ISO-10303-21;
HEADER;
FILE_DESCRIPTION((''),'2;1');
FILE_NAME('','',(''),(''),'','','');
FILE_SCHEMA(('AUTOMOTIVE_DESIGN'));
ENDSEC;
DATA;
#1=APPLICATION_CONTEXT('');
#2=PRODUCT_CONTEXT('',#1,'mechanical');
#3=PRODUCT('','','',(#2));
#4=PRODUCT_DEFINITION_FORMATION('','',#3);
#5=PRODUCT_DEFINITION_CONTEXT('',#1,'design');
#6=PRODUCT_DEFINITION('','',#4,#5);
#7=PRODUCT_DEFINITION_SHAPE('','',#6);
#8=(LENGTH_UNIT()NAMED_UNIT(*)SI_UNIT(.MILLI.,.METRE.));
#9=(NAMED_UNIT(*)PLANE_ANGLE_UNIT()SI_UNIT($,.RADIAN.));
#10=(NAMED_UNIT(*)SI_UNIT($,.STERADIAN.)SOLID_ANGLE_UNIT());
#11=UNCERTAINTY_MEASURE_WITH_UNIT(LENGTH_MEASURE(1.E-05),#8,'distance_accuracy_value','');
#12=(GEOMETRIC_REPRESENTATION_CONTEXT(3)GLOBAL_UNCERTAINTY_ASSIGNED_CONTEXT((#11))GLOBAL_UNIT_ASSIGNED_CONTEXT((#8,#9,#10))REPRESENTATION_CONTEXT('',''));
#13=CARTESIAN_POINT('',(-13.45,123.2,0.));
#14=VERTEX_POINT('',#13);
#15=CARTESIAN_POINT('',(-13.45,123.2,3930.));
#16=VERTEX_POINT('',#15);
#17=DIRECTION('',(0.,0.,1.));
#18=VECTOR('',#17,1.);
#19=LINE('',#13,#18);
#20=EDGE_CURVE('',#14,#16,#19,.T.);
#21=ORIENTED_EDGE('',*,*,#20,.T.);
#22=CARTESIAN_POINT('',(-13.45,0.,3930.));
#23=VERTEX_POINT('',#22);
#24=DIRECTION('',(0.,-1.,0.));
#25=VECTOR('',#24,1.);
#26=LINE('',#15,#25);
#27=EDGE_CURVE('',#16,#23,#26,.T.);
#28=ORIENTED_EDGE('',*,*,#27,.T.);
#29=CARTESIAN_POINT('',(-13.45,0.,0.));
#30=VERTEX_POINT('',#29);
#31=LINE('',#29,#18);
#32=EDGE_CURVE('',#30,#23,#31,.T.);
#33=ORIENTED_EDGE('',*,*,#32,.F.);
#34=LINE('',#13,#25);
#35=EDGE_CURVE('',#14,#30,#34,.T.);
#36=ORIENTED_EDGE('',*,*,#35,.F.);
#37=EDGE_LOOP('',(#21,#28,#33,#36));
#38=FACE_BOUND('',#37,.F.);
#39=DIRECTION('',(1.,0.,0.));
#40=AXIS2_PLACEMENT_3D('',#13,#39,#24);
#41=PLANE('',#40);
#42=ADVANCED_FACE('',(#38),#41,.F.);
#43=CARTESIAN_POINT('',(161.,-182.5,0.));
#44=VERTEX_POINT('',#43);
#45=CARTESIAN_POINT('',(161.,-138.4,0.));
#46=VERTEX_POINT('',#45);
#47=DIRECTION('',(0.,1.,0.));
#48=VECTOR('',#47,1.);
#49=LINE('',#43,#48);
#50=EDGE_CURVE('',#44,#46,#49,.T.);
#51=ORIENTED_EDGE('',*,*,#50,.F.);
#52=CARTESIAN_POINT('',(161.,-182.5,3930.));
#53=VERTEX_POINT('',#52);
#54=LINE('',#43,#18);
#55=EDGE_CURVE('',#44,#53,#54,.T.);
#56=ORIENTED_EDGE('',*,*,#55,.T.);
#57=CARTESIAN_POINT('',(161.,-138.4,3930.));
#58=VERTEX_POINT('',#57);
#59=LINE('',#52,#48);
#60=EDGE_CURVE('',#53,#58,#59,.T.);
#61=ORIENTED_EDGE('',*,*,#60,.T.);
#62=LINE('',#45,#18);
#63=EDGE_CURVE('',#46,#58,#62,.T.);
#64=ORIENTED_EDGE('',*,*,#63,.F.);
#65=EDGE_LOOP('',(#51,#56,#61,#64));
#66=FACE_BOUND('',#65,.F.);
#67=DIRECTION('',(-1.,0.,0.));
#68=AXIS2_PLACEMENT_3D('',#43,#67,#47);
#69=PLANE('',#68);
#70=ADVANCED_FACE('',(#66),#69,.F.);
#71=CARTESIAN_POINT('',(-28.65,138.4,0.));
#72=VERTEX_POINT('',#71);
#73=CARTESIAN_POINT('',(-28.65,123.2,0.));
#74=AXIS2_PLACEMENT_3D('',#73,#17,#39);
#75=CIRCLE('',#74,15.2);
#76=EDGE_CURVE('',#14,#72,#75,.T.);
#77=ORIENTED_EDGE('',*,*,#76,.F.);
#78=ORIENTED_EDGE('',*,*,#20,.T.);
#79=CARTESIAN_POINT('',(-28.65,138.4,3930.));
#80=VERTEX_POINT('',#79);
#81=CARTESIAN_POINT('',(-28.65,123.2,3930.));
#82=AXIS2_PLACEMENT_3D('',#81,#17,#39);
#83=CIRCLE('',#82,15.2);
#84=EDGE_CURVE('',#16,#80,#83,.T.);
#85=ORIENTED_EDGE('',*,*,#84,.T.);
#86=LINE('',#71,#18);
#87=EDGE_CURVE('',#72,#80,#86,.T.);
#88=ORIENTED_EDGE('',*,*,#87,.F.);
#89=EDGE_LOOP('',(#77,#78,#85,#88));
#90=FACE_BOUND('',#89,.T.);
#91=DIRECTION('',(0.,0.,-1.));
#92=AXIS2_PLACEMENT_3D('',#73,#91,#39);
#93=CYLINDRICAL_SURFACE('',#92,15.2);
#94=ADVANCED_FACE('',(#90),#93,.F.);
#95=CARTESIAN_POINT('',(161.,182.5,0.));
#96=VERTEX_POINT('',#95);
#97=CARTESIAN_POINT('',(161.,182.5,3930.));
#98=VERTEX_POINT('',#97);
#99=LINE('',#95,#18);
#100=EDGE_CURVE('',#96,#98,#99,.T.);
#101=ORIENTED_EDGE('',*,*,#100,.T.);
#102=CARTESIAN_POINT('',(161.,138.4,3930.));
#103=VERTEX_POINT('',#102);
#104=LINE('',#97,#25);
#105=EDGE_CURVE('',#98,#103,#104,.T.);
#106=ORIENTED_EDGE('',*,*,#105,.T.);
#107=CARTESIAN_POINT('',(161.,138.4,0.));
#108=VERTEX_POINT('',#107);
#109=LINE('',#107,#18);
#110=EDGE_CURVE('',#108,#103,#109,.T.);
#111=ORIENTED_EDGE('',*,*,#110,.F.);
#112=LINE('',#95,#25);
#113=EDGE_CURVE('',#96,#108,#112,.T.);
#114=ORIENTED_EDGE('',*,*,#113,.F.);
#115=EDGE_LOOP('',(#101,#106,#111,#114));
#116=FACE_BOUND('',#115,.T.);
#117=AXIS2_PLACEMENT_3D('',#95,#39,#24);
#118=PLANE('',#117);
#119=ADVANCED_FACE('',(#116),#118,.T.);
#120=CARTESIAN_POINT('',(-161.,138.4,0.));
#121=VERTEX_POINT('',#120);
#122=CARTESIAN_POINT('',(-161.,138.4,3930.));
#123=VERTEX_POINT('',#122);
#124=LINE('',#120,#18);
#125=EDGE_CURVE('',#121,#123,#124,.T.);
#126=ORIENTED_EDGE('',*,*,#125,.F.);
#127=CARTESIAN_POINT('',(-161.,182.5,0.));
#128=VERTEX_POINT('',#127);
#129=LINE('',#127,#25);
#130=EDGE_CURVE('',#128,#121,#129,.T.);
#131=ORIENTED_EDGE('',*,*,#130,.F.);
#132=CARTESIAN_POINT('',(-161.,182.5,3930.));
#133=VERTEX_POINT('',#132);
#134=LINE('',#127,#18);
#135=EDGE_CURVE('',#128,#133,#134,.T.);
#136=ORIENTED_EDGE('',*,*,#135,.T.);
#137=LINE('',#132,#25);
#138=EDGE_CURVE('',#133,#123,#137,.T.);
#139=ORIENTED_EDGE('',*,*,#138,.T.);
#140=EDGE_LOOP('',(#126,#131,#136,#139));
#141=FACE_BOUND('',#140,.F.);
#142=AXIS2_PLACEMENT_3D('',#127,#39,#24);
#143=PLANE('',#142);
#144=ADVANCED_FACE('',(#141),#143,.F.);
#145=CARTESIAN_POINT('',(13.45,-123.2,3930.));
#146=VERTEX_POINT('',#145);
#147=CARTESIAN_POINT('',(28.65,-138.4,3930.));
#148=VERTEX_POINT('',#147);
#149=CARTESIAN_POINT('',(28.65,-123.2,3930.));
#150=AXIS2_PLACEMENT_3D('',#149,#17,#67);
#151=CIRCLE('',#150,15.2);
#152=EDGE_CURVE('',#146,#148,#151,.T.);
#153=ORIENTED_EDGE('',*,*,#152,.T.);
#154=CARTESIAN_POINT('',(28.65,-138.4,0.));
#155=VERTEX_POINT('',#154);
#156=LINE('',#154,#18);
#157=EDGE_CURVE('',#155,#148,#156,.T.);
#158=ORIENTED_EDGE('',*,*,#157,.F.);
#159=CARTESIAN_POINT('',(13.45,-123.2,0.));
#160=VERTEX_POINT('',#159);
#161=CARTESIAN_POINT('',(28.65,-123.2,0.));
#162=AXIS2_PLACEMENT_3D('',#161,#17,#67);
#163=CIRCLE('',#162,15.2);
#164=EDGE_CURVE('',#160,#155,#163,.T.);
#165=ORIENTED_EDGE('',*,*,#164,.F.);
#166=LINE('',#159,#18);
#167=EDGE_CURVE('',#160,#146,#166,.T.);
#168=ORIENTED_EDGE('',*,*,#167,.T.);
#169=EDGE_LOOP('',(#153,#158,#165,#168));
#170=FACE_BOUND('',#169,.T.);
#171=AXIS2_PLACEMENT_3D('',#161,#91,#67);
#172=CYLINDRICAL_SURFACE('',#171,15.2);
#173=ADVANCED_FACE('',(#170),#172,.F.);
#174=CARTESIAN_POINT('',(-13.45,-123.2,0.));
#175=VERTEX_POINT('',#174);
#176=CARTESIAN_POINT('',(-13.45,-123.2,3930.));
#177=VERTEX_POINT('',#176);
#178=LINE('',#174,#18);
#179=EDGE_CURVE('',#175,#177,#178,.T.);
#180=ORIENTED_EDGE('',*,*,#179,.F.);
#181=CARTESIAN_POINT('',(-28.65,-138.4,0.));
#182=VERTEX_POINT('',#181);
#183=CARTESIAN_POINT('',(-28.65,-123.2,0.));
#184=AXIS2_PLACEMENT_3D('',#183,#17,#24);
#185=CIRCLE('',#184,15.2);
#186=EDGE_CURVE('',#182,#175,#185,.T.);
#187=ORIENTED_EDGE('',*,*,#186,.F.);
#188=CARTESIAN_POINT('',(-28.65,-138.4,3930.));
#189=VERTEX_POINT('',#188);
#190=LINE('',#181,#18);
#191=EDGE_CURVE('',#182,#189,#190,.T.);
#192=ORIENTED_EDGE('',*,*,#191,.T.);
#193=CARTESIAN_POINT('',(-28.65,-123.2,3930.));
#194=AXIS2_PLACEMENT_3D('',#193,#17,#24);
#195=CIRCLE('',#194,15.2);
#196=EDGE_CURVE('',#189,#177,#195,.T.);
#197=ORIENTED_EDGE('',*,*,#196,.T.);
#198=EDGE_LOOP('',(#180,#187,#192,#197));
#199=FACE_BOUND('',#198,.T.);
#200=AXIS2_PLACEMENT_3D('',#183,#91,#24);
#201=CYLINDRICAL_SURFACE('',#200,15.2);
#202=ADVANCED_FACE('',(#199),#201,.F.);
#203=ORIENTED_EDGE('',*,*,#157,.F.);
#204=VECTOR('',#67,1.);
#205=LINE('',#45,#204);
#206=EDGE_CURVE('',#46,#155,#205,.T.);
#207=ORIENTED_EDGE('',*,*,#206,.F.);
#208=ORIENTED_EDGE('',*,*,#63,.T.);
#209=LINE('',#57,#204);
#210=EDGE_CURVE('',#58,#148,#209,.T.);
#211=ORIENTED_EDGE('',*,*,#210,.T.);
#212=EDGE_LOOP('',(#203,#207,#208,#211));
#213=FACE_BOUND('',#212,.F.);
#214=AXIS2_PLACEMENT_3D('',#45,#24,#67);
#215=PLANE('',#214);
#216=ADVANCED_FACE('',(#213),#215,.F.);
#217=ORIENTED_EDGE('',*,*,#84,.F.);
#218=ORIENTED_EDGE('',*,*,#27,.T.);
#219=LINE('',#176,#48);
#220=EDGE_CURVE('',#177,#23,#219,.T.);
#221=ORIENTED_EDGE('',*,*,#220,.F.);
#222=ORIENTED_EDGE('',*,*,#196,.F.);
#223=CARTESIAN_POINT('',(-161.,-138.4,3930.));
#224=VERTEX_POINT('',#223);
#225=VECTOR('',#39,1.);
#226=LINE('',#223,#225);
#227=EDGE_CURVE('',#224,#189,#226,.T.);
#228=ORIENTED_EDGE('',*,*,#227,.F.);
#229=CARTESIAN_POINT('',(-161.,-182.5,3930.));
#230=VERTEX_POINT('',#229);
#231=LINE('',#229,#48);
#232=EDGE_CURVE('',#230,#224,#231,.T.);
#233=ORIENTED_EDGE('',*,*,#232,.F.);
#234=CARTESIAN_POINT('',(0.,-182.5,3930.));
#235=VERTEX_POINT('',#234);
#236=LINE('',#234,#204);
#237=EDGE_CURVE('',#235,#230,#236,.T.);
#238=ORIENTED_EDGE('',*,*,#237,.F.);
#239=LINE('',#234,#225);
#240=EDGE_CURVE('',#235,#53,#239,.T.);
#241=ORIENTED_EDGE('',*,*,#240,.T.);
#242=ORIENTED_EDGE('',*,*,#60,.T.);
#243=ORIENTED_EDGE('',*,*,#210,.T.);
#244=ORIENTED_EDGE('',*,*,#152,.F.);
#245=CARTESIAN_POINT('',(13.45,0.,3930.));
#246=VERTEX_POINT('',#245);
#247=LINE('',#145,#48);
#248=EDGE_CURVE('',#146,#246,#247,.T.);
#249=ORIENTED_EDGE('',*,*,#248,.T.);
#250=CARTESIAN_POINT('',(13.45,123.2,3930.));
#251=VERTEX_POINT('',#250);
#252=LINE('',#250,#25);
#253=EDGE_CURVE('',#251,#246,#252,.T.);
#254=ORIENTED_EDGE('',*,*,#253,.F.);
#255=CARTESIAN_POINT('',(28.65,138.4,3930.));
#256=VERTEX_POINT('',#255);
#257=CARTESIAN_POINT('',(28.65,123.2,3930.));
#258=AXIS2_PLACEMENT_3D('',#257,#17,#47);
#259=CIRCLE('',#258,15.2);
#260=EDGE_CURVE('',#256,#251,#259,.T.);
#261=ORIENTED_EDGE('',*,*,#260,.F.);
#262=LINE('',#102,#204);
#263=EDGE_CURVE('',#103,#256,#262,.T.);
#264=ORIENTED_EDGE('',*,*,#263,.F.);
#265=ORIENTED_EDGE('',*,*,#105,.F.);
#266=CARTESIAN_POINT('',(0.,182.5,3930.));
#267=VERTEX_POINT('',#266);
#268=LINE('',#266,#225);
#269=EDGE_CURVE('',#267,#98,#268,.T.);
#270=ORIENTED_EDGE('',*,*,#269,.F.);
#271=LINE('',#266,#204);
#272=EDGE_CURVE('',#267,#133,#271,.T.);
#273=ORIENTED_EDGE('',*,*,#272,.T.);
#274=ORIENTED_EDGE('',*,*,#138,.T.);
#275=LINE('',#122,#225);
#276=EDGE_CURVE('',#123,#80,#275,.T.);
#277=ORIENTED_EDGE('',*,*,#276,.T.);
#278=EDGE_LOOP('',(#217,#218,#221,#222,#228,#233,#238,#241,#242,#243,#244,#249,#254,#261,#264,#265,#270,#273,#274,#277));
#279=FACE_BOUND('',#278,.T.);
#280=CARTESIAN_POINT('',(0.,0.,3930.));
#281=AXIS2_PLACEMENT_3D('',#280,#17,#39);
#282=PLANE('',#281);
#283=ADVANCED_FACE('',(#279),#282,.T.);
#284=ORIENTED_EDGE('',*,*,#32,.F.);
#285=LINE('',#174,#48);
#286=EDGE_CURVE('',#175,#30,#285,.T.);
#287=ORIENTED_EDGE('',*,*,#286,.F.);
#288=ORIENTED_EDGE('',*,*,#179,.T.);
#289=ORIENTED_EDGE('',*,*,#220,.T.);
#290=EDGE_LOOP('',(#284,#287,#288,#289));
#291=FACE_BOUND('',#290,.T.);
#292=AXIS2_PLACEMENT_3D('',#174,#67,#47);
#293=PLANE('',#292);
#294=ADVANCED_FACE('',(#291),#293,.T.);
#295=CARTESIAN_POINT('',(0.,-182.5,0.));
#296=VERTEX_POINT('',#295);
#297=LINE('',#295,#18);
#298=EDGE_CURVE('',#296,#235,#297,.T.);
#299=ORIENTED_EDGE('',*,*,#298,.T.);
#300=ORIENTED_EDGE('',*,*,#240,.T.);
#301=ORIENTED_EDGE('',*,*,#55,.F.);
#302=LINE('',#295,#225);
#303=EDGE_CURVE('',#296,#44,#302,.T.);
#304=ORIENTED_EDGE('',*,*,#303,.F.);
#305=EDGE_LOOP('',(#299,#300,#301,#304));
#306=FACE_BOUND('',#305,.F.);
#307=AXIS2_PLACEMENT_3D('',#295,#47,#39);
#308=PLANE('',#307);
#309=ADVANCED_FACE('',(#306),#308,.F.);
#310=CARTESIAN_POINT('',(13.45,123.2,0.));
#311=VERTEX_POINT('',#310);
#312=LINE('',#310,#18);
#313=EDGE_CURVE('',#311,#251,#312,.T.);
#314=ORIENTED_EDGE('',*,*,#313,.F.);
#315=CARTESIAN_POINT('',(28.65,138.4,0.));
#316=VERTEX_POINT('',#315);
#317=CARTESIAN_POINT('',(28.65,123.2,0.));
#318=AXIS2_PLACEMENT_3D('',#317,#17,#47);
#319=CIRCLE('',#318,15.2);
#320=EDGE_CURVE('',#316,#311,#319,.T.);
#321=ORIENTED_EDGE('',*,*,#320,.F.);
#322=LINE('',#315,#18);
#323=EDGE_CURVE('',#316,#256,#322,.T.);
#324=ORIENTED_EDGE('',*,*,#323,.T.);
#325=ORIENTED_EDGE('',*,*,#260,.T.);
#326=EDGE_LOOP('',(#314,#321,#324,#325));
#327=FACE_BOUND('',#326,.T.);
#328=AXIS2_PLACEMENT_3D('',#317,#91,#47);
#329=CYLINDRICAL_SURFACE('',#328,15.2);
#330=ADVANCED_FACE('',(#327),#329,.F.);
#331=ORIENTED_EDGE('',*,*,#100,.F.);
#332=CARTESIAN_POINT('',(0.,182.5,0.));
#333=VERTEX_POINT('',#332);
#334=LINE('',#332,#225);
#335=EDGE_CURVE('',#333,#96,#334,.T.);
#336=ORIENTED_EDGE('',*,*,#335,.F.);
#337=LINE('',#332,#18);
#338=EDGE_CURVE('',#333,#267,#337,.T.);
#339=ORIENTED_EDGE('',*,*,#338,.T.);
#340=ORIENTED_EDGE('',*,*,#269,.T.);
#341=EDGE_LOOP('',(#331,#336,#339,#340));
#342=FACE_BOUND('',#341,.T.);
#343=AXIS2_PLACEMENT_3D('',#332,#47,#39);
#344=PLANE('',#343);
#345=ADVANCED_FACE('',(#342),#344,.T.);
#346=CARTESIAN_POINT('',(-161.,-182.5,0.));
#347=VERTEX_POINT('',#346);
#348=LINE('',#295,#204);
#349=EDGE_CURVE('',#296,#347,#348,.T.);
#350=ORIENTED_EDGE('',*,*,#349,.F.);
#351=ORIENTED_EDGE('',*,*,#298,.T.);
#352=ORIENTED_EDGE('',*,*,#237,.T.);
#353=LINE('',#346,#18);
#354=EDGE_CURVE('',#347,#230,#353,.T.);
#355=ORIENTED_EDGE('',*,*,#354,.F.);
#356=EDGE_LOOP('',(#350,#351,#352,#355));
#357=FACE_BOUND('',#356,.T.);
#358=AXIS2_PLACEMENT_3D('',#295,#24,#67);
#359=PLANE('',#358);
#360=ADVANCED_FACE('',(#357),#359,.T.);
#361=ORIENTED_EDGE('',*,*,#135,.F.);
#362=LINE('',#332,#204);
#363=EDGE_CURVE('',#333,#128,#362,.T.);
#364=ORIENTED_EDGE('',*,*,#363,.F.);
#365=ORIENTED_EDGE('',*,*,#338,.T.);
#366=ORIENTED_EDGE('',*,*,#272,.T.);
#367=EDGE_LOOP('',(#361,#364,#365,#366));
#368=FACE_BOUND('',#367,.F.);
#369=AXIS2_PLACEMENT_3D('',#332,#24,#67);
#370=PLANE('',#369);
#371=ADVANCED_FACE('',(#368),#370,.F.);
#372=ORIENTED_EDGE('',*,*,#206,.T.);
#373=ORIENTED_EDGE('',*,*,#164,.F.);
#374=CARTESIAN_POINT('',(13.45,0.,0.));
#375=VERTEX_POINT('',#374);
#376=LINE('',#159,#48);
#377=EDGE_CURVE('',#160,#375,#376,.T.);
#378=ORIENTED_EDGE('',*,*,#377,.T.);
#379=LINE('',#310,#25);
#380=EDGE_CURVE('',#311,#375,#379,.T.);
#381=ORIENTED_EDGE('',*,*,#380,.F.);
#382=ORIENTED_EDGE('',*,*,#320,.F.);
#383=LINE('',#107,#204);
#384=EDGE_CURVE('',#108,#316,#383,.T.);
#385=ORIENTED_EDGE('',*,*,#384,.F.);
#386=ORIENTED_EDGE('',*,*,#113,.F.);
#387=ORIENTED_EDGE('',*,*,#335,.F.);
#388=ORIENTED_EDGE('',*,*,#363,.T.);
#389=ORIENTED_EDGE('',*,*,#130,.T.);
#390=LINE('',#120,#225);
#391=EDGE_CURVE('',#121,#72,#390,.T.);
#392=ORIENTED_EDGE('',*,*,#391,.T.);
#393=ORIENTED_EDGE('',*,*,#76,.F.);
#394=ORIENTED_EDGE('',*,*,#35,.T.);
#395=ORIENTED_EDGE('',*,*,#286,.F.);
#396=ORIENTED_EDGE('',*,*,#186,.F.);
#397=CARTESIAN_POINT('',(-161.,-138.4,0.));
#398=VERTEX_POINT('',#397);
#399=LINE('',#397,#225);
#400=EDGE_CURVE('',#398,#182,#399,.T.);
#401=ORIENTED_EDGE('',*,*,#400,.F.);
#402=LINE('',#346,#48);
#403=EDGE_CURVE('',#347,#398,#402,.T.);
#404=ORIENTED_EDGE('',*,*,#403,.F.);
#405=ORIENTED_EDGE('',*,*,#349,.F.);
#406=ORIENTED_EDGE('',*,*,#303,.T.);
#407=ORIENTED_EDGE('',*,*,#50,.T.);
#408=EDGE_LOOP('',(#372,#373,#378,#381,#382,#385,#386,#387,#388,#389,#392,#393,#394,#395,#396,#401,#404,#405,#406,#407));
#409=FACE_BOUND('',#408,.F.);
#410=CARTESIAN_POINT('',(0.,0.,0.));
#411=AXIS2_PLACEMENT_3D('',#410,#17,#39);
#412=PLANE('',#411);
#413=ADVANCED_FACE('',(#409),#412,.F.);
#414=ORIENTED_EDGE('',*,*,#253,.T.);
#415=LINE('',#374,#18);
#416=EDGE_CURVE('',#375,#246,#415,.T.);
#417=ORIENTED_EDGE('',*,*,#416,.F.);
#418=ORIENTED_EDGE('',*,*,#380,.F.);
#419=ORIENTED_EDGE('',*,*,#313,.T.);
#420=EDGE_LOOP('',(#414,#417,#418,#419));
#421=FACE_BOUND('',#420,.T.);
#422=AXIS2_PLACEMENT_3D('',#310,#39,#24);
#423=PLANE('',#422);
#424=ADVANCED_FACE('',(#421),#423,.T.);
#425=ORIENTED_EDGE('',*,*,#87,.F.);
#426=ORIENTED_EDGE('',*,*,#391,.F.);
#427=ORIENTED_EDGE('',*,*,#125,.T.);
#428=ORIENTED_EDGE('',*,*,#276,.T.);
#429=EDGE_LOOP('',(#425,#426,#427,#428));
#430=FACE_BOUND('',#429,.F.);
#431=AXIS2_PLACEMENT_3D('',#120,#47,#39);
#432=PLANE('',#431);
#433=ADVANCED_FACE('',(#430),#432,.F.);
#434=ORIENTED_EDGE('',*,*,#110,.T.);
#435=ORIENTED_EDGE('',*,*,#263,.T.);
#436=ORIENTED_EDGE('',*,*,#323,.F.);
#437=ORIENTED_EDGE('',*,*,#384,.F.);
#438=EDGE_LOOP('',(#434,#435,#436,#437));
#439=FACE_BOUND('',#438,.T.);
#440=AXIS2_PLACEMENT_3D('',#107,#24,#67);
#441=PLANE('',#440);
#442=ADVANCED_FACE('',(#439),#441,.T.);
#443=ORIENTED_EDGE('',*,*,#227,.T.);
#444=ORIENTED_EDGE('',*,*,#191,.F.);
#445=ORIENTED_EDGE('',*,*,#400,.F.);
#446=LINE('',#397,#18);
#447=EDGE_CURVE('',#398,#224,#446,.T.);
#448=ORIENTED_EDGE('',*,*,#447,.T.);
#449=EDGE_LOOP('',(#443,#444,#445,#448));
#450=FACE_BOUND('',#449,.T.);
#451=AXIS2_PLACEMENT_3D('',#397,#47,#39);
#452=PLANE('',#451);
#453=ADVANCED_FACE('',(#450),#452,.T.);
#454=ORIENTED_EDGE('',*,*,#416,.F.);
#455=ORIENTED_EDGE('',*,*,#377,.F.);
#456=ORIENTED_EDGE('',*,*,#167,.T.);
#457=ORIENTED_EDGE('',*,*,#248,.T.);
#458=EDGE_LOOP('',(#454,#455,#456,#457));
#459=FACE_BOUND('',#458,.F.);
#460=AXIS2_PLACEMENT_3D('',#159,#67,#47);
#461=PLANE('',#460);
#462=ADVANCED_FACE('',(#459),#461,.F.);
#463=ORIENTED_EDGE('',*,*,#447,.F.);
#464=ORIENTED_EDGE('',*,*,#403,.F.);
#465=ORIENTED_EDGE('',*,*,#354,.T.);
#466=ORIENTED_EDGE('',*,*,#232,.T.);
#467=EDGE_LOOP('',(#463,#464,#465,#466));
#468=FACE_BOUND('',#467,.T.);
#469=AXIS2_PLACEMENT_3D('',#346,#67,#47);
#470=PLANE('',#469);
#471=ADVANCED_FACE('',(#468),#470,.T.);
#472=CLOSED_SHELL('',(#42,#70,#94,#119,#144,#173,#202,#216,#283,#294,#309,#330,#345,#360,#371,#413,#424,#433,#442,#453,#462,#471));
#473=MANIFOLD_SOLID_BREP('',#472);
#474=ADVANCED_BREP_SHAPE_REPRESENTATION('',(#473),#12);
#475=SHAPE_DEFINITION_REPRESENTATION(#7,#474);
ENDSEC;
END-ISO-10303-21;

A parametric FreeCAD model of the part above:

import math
import FreeCAD as App
import Part
import Sketcher
Q = App.Units.Quantity

doc = App.newDocument("Part")
body = doc.addObject("PartDesign::Body", "Body")

# Sketch on XY plane
sketch1 = body.newObject("Sketcher::SketchObject", "Sketch")
sketch1.AttachmentSupport = (doc.getObject("XY_Plane"), [""])
sketch1.MapMode = "FlatFace"
sketch1.addGeometry([
    Part.LineSegment(App.Vector(-161, -138, 0), App.Vector(-161, -182, 0)),  # 0
    Part.LineSegment(App.Vector(-161, -182, 0), App.Vector(161, -182, 0)),  # 1
    Part.LineSegment(App.Vector(161, -182, 0), App.Vector(161, -138, 0)),  # 2
    Part.LineSegment(App.Vector(161, -138, 0), App.Vector(29, -138, 0)),  # 3
    Part.ArcOfCircle(Part.Circle(App.Vector(29, -123, 0), App.Vector(0, 0, 1), 15), math.radians(180), math.radians(270)),  # 4
    Part.LineSegment(App.Vector(13, -123, 0), App.Vector(13, 123, 0)),  # 5
    Part.ArcOfCircle(Part.Circle(App.Vector(29, 123, 0), App.Vector(0, 0, 1), 15), math.radians(90), math.radians(180)),  # 6
    Part.LineSegment(App.Vector(29, 138, 0), App.Vector(161, 138, 0)),  # 7
    Part.LineSegment(App.Vector(161, 138, 0), App.Vector(161, 182, 0)),  # 8
    Part.LineSegment(App.Vector(161, 182, 0), App.Vector(-161, 182, 0)),  # 9
    Part.LineSegment(App.Vector(-161, 182, 0), App.Vector(-161, 138, 0)),  # 10
    Part.LineSegment(App.Vector(-161, 138, 0), App.Vector(-29, 138, 0)),  # 11
    Part.ArcOfCircle(Part.Circle(App.Vector(-29, 123, 0), App.Vector(0, 0, 1), 15), math.radians(0), math.radians(90)),  # 12
    Part.LineSegment(App.Vector(-13, 123, 0), App.Vector(-13, -123, 0)),  # 13
    Part.ArcOfCircle(Part.Circle(App.Vector(-29, -123, 0), App.Vector(0, 0, 1), 15), math.radians(-90), math.radians(0)),  # 14
    Part.LineSegment(App.Vector(-29, -138, 0), App.Vector(-161, -138, 0)),  # 15
], False)
sketch1.addConstraint([
    Sketcher.Constraint("Coincident", 0, 2, 1, 1),
    Sketcher.Constraint("Coincident", 1, 2, 2, 1),
    Sketcher.Constraint("Coincident", 2, 2, 3, 1),
    Sketcher.Constraint("Tangent", 3, 2, 4, 2),
    Sketcher.Constraint("Tangent", 4, 1, 5, 1),
    Sketcher.Constraint("Tangent", 5, 2, 6, 2),
    Sketcher.Constraint("Tangent", 6, 1, 7, 1),
    Sketcher.Constraint("Coincident", 7, 2, 8, 1),
    Sketcher.Constraint("Coincident", 8, 2, 9, 1),
    Sketcher.Constraint("Coincident", 9, 2, 10, 1),
    Sketcher.Constraint("Coincident", 10, 2, 11, 1),
    Sketcher.Constraint("Tangent", 11, 2, 12, 2),
    Sketcher.Constraint("Tangent", 12, 1, 13, 1),
    Sketcher.Constraint("Tangent", 13, 2, 14, 2),
    Sketcher.Constraint("Tangent", 14, 1, 15, 1),
    Sketcher.Constraint("Coincident", 15, 2, 0, 1),
    Sketcher.Constraint("Vertical", 0),
    Sketcher.Constraint("Horizontal", 1),
    Sketcher.Constraint("Vertical", 2),
    Sketcher.Constraint("Horizontal", 3),
    Sketcher.Constraint("Vertical", 5),
    Sketcher.Constraint("Horizontal", 7),
    Sketcher.Constraint("Vertical", 8),
    Sketcher.Constraint("Horizontal", 9),
    Sketcher.Constraint("Vertical", 10),
    Sketcher.Constraint("Horizontal", 11),
    Sketcher.Constraint("Vertical", 13),
    Sketcher.Constraint("Horizontal", 15),
    Sketcher.Constraint("Equal", 4, 6),
    Sketcher.Constraint("Equal", 6, 12),
    Sketcher.Constraint("Equal", 12, 14),
    Sketcher.Constraint("Symmetric", 4, 3, 12, 3, -1, 1),
    Sketcher.Constraint("Symmetric", 0, 2, 8, 2, -1, 1),
    Sketcher.Constraint("Symmetric", 7, 2, 10, 2, -2),
    Sketcher.Constraint("Symmetric", 2, 2, 15, 2, -2),
    Sketcher.Constraint("Radius", 4, Q("15.2 mm")),
    Sketcher.Constraint("DistanceY", 0, 2, 0, 1, Q("44.1 mm")),
    Sketcher.Constraint("DistanceX", 0, 2, -1, 1, Q("161 mm")),
    Sketcher.Constraint("DistanceY", 0, 2, -1, 1, Q("182.5 mm")),
    Sketcher.Constraint("DistanceX", -1, 1, 4, 1, Q("13.45 mm")),
])
pad1 = body.newObject("PartDesign::Pad", "Pad")
pad1.Profile = sketch1
pad1.Length = 3930

doc.recompute()
